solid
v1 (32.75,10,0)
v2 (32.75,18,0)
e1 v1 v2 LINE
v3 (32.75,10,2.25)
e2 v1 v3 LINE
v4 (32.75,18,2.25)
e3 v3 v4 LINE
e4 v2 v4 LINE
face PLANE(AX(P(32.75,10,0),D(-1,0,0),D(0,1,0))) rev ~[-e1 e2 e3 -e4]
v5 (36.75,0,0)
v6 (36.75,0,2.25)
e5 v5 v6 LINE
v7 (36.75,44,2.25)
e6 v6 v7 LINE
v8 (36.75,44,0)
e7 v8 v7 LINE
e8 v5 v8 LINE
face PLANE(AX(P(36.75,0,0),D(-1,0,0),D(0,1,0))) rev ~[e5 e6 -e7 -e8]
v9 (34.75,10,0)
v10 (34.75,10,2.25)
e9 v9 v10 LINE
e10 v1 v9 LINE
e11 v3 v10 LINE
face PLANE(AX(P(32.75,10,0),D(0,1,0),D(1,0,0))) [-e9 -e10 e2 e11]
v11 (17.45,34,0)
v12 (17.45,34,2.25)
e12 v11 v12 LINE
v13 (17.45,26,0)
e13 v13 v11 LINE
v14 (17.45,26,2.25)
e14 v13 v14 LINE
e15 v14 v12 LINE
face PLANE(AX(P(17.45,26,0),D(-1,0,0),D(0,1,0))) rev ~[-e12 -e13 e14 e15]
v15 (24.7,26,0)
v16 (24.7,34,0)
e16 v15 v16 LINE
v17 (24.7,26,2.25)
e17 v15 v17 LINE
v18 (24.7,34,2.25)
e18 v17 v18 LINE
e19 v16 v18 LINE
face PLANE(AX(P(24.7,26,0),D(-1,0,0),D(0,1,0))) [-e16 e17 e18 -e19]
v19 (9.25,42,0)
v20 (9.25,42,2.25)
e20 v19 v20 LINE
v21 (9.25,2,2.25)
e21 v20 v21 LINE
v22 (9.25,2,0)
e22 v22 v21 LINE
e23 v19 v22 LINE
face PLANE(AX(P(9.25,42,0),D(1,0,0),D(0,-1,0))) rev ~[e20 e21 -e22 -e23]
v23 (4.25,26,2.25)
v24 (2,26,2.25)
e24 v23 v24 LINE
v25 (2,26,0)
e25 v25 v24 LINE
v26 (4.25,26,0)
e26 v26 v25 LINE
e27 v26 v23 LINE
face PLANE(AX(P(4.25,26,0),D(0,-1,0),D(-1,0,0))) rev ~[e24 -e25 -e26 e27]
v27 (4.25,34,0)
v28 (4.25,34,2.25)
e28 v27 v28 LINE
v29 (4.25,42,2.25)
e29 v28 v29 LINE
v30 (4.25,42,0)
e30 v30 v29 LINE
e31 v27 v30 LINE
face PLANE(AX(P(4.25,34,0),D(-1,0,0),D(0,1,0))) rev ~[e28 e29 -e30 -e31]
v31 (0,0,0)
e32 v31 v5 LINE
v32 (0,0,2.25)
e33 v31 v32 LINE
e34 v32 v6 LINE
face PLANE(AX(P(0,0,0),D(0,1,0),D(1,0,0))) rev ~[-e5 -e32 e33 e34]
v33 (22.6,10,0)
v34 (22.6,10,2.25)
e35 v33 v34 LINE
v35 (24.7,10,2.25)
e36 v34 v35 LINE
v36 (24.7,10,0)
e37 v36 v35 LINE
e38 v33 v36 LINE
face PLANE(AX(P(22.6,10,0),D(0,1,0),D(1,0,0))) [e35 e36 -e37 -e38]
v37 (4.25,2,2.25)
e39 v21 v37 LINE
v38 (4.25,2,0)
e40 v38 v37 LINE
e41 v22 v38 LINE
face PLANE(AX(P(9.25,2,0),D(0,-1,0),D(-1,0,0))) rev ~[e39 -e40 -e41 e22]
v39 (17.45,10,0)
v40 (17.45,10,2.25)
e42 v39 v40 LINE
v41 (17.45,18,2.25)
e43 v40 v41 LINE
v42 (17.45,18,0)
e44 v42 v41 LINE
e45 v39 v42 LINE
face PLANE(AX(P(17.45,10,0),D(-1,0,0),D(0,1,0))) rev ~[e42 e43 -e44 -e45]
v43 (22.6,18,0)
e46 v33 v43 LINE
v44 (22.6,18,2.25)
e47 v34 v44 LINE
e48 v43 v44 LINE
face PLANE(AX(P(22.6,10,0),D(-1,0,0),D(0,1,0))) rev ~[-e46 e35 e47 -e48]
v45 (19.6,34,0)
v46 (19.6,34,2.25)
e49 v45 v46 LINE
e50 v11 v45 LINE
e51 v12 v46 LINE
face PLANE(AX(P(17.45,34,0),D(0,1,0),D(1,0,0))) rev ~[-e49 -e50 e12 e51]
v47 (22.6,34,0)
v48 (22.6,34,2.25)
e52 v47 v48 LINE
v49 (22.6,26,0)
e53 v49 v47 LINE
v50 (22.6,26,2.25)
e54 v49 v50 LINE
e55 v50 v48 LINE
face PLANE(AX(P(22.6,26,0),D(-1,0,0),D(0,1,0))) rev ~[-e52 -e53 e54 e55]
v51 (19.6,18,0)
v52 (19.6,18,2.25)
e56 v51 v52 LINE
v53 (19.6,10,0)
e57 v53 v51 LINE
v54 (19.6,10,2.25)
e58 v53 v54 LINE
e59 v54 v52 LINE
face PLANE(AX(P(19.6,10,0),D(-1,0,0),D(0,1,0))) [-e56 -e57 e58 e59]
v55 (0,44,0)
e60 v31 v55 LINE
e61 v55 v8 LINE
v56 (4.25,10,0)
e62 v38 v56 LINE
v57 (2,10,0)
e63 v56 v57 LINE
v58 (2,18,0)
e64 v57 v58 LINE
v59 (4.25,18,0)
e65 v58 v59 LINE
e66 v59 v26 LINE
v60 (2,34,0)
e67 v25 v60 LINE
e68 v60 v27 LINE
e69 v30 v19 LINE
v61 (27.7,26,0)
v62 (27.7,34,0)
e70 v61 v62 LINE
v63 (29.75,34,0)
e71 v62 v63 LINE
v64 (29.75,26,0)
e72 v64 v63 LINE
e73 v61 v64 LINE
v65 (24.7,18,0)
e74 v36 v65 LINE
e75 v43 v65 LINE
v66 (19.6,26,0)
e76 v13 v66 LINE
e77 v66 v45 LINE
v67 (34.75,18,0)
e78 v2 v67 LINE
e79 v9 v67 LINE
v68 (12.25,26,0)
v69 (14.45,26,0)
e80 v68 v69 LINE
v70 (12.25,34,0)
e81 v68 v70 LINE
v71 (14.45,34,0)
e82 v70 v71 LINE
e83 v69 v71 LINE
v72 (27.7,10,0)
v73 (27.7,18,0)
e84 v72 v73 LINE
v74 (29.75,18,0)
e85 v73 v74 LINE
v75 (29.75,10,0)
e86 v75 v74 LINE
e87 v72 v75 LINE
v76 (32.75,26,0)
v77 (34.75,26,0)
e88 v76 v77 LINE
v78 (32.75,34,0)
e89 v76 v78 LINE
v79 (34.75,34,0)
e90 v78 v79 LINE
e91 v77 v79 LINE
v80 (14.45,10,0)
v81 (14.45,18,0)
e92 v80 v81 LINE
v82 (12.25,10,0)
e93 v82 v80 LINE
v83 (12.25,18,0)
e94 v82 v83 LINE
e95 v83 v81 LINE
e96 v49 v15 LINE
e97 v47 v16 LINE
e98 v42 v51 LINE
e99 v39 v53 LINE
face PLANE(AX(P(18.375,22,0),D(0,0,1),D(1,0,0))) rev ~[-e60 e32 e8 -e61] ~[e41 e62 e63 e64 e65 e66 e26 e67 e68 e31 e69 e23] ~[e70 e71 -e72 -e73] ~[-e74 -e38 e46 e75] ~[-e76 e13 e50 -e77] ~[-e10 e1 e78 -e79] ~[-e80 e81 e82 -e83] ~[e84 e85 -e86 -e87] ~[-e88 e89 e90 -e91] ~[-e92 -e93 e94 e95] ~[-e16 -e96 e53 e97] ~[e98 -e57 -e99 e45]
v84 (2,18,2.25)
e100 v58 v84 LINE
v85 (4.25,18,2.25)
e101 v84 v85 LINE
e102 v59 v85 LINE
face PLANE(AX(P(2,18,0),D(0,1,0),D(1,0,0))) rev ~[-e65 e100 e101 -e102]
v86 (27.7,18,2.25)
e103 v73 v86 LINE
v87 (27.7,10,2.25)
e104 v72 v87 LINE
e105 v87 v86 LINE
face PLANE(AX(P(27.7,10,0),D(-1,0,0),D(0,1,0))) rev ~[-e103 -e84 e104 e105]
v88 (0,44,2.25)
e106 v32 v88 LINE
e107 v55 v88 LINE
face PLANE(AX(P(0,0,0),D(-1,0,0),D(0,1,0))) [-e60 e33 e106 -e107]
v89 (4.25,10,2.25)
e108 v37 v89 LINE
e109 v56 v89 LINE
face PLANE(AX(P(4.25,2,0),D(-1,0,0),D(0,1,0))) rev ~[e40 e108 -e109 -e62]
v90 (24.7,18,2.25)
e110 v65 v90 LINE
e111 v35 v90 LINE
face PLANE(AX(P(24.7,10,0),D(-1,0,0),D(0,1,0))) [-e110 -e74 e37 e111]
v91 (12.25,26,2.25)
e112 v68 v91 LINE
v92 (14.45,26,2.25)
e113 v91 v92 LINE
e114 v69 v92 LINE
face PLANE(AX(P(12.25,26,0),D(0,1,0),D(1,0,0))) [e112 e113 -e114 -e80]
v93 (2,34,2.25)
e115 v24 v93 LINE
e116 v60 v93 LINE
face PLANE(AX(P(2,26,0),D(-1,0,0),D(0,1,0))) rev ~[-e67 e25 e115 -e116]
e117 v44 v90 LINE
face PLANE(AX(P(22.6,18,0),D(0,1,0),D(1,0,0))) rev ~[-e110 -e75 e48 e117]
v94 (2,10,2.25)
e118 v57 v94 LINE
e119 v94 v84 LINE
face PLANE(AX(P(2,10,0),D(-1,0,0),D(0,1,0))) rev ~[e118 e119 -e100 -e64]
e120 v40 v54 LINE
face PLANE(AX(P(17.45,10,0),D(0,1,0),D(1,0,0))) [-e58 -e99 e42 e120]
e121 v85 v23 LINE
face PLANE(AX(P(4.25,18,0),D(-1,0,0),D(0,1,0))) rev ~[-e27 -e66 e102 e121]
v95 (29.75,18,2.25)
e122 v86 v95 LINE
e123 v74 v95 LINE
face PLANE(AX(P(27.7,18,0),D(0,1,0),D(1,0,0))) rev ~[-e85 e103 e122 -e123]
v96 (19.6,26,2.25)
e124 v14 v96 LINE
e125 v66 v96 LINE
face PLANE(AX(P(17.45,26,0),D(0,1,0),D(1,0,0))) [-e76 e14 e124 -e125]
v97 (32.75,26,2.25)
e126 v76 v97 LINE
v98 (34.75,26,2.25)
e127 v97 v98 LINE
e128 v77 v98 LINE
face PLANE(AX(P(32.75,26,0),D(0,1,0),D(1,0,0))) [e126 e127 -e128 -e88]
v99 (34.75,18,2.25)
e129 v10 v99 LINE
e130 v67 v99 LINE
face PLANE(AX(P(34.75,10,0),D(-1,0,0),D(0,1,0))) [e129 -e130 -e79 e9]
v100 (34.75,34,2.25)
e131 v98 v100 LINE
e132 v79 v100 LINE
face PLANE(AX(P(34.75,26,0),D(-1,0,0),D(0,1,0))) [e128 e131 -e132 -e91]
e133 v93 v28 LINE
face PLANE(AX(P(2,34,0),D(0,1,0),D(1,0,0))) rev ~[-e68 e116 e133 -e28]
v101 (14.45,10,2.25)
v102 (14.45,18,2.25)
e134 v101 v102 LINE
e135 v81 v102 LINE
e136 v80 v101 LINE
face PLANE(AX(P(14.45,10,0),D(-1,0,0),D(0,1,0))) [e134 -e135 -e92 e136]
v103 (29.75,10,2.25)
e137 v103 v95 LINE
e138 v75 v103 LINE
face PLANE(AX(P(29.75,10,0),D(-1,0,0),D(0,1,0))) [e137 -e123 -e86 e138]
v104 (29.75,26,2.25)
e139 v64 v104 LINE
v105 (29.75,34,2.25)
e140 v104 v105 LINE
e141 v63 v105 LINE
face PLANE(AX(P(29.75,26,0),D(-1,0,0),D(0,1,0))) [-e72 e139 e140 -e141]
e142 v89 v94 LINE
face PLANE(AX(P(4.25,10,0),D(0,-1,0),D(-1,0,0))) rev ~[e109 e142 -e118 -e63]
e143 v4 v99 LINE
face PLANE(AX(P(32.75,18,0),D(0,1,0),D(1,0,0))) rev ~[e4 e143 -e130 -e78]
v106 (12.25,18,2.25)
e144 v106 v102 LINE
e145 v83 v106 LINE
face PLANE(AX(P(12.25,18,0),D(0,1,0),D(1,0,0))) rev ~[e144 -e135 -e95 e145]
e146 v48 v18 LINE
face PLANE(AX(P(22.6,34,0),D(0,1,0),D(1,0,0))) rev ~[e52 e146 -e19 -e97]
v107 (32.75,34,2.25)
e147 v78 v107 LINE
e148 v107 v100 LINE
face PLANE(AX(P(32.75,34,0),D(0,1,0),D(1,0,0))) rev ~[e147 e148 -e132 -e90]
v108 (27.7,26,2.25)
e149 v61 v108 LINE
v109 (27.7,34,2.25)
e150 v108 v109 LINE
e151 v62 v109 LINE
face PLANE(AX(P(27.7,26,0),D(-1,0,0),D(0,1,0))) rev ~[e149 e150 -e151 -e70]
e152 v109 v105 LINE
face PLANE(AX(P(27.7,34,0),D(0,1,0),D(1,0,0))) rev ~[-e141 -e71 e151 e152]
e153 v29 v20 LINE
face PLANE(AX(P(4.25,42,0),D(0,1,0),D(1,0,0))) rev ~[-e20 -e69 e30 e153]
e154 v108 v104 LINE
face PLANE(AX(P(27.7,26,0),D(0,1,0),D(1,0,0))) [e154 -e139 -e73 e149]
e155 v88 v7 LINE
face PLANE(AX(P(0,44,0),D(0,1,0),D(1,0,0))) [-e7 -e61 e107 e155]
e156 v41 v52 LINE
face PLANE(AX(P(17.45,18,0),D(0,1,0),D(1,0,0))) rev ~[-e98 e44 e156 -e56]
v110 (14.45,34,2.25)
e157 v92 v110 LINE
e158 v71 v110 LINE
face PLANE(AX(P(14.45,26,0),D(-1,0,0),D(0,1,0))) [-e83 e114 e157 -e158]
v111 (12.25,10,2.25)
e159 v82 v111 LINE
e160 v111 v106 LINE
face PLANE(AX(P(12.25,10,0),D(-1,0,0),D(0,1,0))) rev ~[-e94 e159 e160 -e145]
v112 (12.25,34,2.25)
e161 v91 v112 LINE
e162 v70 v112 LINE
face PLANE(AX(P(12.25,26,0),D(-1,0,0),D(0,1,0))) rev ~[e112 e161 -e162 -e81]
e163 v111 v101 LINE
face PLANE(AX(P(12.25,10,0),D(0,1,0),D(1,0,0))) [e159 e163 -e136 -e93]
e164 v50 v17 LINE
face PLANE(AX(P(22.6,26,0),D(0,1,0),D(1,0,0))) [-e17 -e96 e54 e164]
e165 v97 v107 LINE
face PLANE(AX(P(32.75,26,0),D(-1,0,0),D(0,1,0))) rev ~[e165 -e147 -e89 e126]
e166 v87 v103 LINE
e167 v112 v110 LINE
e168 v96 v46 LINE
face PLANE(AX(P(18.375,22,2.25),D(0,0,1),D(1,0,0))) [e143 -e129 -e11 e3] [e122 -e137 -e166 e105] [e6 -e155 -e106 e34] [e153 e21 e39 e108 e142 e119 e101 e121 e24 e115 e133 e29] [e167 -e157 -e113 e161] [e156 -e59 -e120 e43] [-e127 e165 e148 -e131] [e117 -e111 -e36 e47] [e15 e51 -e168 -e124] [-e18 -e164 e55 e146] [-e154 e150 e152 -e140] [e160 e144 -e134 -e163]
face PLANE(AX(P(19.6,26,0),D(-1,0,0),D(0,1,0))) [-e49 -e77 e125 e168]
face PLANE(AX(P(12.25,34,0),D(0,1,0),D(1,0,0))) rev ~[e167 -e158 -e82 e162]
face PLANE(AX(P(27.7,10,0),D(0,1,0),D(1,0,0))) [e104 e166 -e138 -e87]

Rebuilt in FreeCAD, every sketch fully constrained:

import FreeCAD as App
import Part
import Sketcher

V = App.Vector


def add_polygon(sketch, points):
    """Adds a closed chain of lines whose ends are joined by coincident constraints."""
    first, n = sketch.GeometryCount, len(points)
    for a, b in zip(points, points[1:] + points[:1]):
        sketch.addGeometry(Part.LineSegment(App.Vector(*a, 0), App.Vector(*b, 0)), False)
    for i in range(n):
        sketch.addConstraint(Sketcher.Constraint("Coincident", first + i, 2, first + (i + 1) % n, 1))

doc = App.newDocument("Part")
body = doc.addObject("PartDesign::Body", "Body")

# Sketch on XY plane
sketch1 = body.newObject("Sketcher::SketchObject", "Sketch")
sketch1.AttachmentSupport = (doc.getObject("XY_Plane"), [""])
sketch1.MapMode = "FlatFace"
add_polygon(sketch1, [(0, 44), (0, 0), (36.8, 0), (36.8, 44)])  # lines 0-3
add_polygon(sketch1, [(14.4, 10), (12.2, 10), (12.2, 18), (14.4, 18)])  # lines 4-7
add_polygon(sketch1, [(19.6, 10), (17.4, 10), (17.4, 18), (19.6, 18)])  # lines 8-11
add_polygon(sketch1, [(24.7, 10), (22.6, 10), (22.6, 18), (24.7, 18)])  # lines 12-15
add_polygon(sketch1, [(29.8, 10), (27.7, 10), (27.7, 18), (29.8, 18)])  # lines 16-19
add_polygon(sketch1, [(34.8, 10), (32.8, 10), (32.8, 18), (34.8, 18)])  # lines 20-23
add_polygon(sketch1, [(9.2, 42), (9.2, 2), (4.2, 2), (4.2, 10), (2, 10), (2, 18), (4.2, 18), (4.2, 26), (2, 26), (2, 34), (4.2, 34), (4.2, 42)])  # lines 24-35
add_polygon(sketch1, [(14.4, 26), (12.2, 26), (12.2, 34), (14.4, 34)])  # lines 36-39
add_polygon(sketch1, [(19.6, 26), (17.4, 26), (17.4, 34), (19.6, 34)])  # lines 40-43
add_polygon(sketch1, [(24.7, 26), (22.6, 26), (22.6, 34), (24.7, 34)])  # lines 44-47
add_polygon(sketch1, [(29.8, 26), (27.7, 26), (27.7, 34), (29.8, 34)])  # lines 48-51
add_polygon(sketch1, [(34.8, 26), (32.8, 26), (32.8, 34), (34.8, 34)])  # lines 52-55
sketch1.addConstraint(Sketcher.Constraint("Vertical", 0))
sketch1.addConstraint(Sketcher.Constraint("Horizontal", 1))
sketch1.addConstraint(Sketcher.Constraint("Vertical", 2))
sketch1.addConstraint(Sketcher.Constraint("Horizontal", 3))
sketch1.addConstraint(Sketcher.Constraint("Horizontal", 4))
sketch1.addConstraint(Sketcher.Constraint("Vertical", 5))
sketch1.addConstraint(Sketcher.Constraint("Horizontal", 6))
sketch1.addConstraint(Sketcher.Constraint("Vertical", 7))
sketch1.addConstraint(Sketcher.Constraint("Horizontal", 8))
sketch1.addConstraint(Sketcher.Constraint("Vertical", 9))
sketch1.addConstraint(Sketcher.Constraint("Horizontal", 10))
sketch1.addConstraint(Sketcher.Constraint("Vertical", 11))
sketch1.addConstraint(Sketcher.Constraint("Horizontal", 12))
sketch1.addConstraint(Sketcher.Constraint("Vertical", 13))
sketch1.addConstraint(Sketcher.Constraint("Horizontal", 14))
sketch1.addConstraint(Sketcher.Constraint("Vertical", 15))
sketch1.addConstraint(Sketcher.Constraint("Horizontal", 16))
sketch1.addConstraint(Sketcher.Constraint("Vertical", 17))
sketch1.addConstraint(Sketcher.Constraint("Horizontal", 18))
sketch1.addConstraint(Sketcher.Constraint("Vertical", 19))
sketch1.addConstraint(Sketcher.Constraint("Horizontal", 20))
sketch1.addConstraint(Sketcher.Constraint("Vertical", 21))
sketch1.addConstraint(Sketcher.Constraint("Horizontal", 22))
sketch1.addConstraint(Sketcher.Constraint("Vertical", 23))
sketch1.addConstraint(Sketcher.Constraint("Vertical", 24))
sketch1.addConstraint(Sketcher.Constraint("Horizontal", 25))
sketch1.addConstraint(Sketcher.Constraint("Vertical", 26))
sketch1.addConstraint(Sketcher.Constraint("Horizontal", 27))
sketch1.addConstraint(Sketcher.Constraint("Vertical", 28))
sketch1.addConstraint(Sketcher.Constraint("Horizontal", 29))
sketch1.addConstraint(Sketcher.Constraint("Vertical", 30))
sketch1.addConstraint(Sketcher.Constraint("Horizontal", 31))
sketch1.addConstraint(Sketcher.Constraint("Vertical", 32))
sketch1.addConstraint(Sketcher.Constraint("Horizontal", 33))
sketch1.addConstraint(Sketcher.Constraint("Vertical", 34))
sketch1.addConstraint(Sketcher.Constraint("Horizontal", 35))
sketch1.addConstraint(Sketcher.Constraint("Horizontal", 36))
sketch1.addConstraint(Sketcher.Constraint("Vertical", 37))
sketch1.addConstraint(Sketcher.Constraint("Horizontal", 38))
sketch1.addConstraint(Sketcher.Constraint("Vertical", 39))
sketch1.addConstraint(Sketcher.Constraint("Horizontal", 40))
sketch1.addConstraint(Sketcher.Constraint("Vertical", 41))
sketch1.addConstraint(Sketcher.Constraint("Horizontal", 42))
sketch1.addConstraint(Sketcher.Constraint("Vertical", 43))
sketch1.addConstraint(Sketcher.Constraint("Horizontal", 44))
sketch1.addConstraint(Sketcher.Constraint("Vertical", 45))
sketch1.addConstraint(Sketcher.Constraint("Horizontal", 46))
sketch1.addConstraint(Sketcher.Constraint("Vertical", 47))
sketch1.addConstraint(Sketcher.Constraint("Horizontal", 48))
sketch1.addConstraint(Sketcher.Constraint("Vertical", 49))
sketch1.addConstraint(Sketcher.Constraint("Horizontal", 50))
sketch1.addConstraint(Sketcher.Constraint("Vertical", 51))
sketch1.addConstraint(Sketcher.Constraint("Horizontal", 52))
sketch1.addConstraint(Sketcher.Constraint("Vertical", 53))
sketch1.addConstraint(Sketcher.Constraint("Horizontal", 54))
sketch1.addConstraint(Sketcher.Constraint("Vertical", 55))
sketch1.addConstraint(Sketcher.Constraint("Coincident", 0, 2, -1, 1))
sketch1.addConstraint(Sketcher.Constraint("Horizontal", 7, 2, 8, 2))
sketch1.addConstraint(Sketcher.Constraint("Horizontal", 6, 2, 9, 2))
sketch1.addConstraint(Sketcher.Constraint("Horizontal", 11, 2, 12, 2))
sketch1.addConstraint(Sketcher.Constraint("Horizontal", 10, 2, 13, 2))
sketch1.addConstraint(Sketcher.Constraint("Horizontal", 15, 2, 16, 2))
sketch1.addConstraint(Sketcher.Constraint("Horizontal", 14, 2, 17, 2))
sketch1.addConstraint(Sketcher.Constraint("Horizontal", 19, 2, 20, 2))
sketch1.addConstraint(Sketcher.Constraint("Horizontal", 18, 2, 21, 2))
sketch1.addConstraint(Sketcher.Constraint("Horizontal", 23, 2, 26, 2))
sketch1.addConstraint(Sketcher.Constraint("Horizontal", 22, 2, 28, 2))
sketch1.addConstraint(Sketcher.Constraint("Horizontal", 31, 2, 36, 2))
sketch1.addConstraint(Sketcher.Constraint("Horizontal", 33, 2, 37, 2))
sketch1.addConstraint(Sketcher.Constraint("Horizontal", 39, 2, 40, 2))
sketch1.addConstraint(Sketcher.Constraint("Horizontal", 38, 2, 41, 2))
sketch1.addConstraint(Sketcher.Constraint("Horizontal", 43, 2, 44, 2))
sketch1.addConstraint(Sketcher.Constraint("Horizontal", 42, 2, 45, 2))
sketch1.addConstraint(Sketcher.Constraint("Horizontal", 47, 2, 48, 2))
sketch1.addConstraint(Sketcher.Constraint("Horizontal", 46, 2, 49, 2))
sketch1.addConstraint(Sketcher.Constraint("Horizontal", 51, 2, 52, 2))
sketch1.addConstraint(Sketcher.Constraint("Horizontal", 50, 2, 53, 2))
sketch1.addConstraint(Sketcher.Constraint("Vertical", 26, 2, 29, 2))
sketch1.addConstraint(Sketcher.Constraint("Vertical", 28, 2, 31, 2))
sketch1.addConstraint(Sketcher.Constraint("Vertical", 30, 2, 33, 2))
sketch1.addConstraint(Sketcher.Constraint("Vertical", 5, 2, 36, 2))
sketch1.addConstraint(Sketcher.Constraint("Vertical", 7, 2, 38, 2))
sketch1.addConstraint(Sketcher.Constraint("Vertical", 9, 2, 40, 2))
sketch1.addConstraint(Sketcher.Constraint("Vertical", 11, 2, 42, 2))
sketch1.addConstraint(Sketcher.Constraint("Vertical", 13, 2, 44, 2))
sketch1.addConstraint(Sketcher.Constraint("Vertical", 15, 2, 46, 2))
sketch1.addConstraint(Sketcher.Constraint("Vertical", 17, 2, 48, 2))
sketch1.addConstraint(Sketcher.Constraint("Vertical", 19, 2, 50, 2))
sketch1.addConstraint(Sketcher.Constraint("Vertical", 21, 2, 52, 2))
sketch1.addConstraint(Sketcher.Constraint("Vertical", 23, 2, 54, 2))
sketch1.addConstraint(Sketcher.Constraint("Equal", 23, 26))
sketch1.addConstraint(Sketcher.Constraint("Equal", 28, 30))
sketch1.addConstraint(Sketcher.Constraint("Equal", 30, 32))
sketch1.addConstraint(Sketcher.Constraint("Equal", 32, 34))
sketch1.addConstraint(Sketcher.Constraint("DistanceX", 20, 2, 20, 1, 2.0))
sketch1.addConstraint(Sketcher.Constraint("DistanceX", 25, 2, 25, 1, 5.0))
sketch1.addConstraint(Sketcher.Constraint("DistanceY", 0, 2, 0, 1, 44.0))
sketch1.addConstraint(Sketcher.Constraint("DistanceY", 5, 1, 5, 2, 8.0))
sketch1.addConstraint(Sketcher.Constraint("DistanceX", 4, 2, 4, 1, 2.2))
sketch1.addConstraint(Sketcher.Constraint("DistanceX", 12, 2, 12, 1, 2.1))
sketch1.addConstraint(Sketcher.Constraint("DistanceY", -1, 1, 4, 2, 10.0))
sketch1.addConstraint(Sketcher.Constraint("DistanceX", -1, 1, 27, 2, 2.0))
sketch1.addConstraint(Sketcher.Constraint("DistanceX", 7, 2, 8, 2, 3.0))
sketch1.addConstraint(Sketcher.Constraint("DistanceX", 11, 2, 12, 2, 3.0))
sketch1.addConstraint(Sketcher.Constraint("DistanceX", 15, 2, 16, 2, 3.0))
sketch1.addConstraint(Sketcher.Constraint("DistanceX", 19, 2, 20, 2, 3.0))
sketch1.addConstraint(Sketcher.Constraint("DistanceX", 24, 2, 4, 2, 3.0))
sketch1.addConstraint(Sketcher.Constraint("DistanceX", 1, 1, 1, 2, 36.75))
sketch1.addConstraint(Sketcher.Constraint("DistanceX", 8, 2, 8, 1, 2.15))
sketch1.addConstraint(Sketcher.Constraint("DistanceX", 16, 2, 16, 1, 2.05))
sketch1.addConstraint(Sketcher.Constraint("DistanceX", 27, 2, 27, 1, 2.25))
pad1 = body.newObject("PartDesign::Pad", "Pad")
pad1.Profile = sketch1
pad1.Length = 2.25

doc.recompute()
